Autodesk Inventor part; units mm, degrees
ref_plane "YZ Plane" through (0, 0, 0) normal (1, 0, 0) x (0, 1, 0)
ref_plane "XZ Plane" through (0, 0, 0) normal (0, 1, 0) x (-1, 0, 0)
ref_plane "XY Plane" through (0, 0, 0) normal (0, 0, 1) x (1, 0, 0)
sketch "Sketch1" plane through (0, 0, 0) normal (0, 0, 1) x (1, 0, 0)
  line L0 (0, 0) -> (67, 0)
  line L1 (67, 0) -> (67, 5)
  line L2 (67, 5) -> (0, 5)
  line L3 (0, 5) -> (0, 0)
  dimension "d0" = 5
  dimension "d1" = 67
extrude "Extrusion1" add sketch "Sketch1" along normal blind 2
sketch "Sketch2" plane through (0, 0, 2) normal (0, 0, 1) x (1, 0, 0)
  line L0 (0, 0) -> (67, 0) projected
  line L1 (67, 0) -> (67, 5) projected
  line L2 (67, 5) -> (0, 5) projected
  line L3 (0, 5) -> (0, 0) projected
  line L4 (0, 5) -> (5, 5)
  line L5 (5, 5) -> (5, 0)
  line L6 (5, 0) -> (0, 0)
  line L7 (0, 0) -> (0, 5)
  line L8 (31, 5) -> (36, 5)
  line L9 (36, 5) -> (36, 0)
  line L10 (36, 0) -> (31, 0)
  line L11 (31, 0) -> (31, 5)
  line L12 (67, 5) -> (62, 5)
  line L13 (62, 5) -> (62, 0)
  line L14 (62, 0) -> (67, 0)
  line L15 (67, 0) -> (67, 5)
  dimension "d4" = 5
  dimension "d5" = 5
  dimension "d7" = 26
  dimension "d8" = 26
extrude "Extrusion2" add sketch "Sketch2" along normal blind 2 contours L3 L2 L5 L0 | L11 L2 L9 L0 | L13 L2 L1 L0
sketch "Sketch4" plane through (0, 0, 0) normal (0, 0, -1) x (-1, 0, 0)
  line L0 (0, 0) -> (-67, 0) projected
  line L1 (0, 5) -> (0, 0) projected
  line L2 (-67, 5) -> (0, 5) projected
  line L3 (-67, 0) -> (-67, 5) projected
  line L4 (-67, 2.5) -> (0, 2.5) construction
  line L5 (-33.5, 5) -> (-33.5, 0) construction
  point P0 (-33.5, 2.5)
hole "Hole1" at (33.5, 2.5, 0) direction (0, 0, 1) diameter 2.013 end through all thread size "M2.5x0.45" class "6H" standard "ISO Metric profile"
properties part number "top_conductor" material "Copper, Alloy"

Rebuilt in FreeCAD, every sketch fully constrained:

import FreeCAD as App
import Part
import Sketcher
from FreeCAD import Vector

doc = App.newDocument("Part")
params = doc.addObject("Spreadsheet::Sheet", "Params")
for row, (alias, value) in enumerate([
    ("sketch1_width", "67 mm"),
    ("sketch1_height", "5 mm"),
    ("pad1_length", "2 mm"),
    ("sketch2_width", "5 mm"),
    ("pad2_length", "2 mm"),
    ("hole_diameter", "2.013 mm"),
], start=1):
    params.set(f"A{row}", alias)
    params.set(f"B{row}", "=" + value)
    params.setAlias(f"B{row}", alias)

body = doc.addObject("PartDesign::Body", "Body")

sketch1 = doc.addObject("Sketcher::SketchObject", "Sketch")
body.addObject(sketch1)
sketch1.AttachmentSupport = (doc.XY_Plane, [""])
sketch1.MapMode = "FlatFace"
sketch1.addGeometry([
    Part.LineSegment(Vector(0, 5, 0), Vector(0, 0, 0)),
    Part.LineSegment(Vector(0, 0, 0), Vector(67, 0, 0)),
    Part.LineSegment(Vector(67, 0, 0), Vector(67, 5, 0)),
    Part.LineSegment(Vector(67, 5, 0), Vector(0, 5, 0)),
], False)
sketch1.addConstraint([
    Sketcher.Constraint("Coincident", 0, 2, 1, 1),
    Sketcher.Constraint("Coincident", 1, 2, 2, 1),
    Sketcher.Constraint("Coincident", 2, 2, 3, 1),
    Sketcher.Constraint("Coincident", 3, 2, 0, 1),
    Sketcher.Constraint("Vertical", 0),
    Sketcher.Constraint("Horizontal", 1),
    Sketcher.Constraint("Vertical", 2),
    Sketcher.Constraint("Horizontal", 3),
    Sketcher.Constraint("Coincident", 0, 2, -1, 1),
    Sketcher.Constraint("DistanceX", 1, 1, 1, 2, 67.0),
    Sketcher.Constraint("DistanceY", 0, 2, 0, 1, 5.0),
])
sketch1.setExpression("Constraints[9]", "Params.sketch1_width")
sketch1.setExpression("Constraints[10]", "Params.sketch1_height")
pad1 = doc.addObject("PartDesign::Pad", "Pad")
body.addObject(pad1)
pad1.Profile = sketch1
pad1.setExpression("Length", "Params.pad1_length")

sketch2 = doc.addObject("Sketcher::SketchObject", "Sketch001")
body.addObject(sketch2)
sketch2.AttachmentSupport = (doc.XY_Plane, [""])
sketch2.MapMode = "FlatFace"
sketch2.AttachmentOffset = App.Placement(Vector(0, 0, 2), App.Rotation())
sketch2.addGeometry([
    Part.LineSegment(Vector(0, 5, 0), Vector(0, 0, 0)),
    Part.LineSegment(Vector(0, 0, 0), Vector(5, 0, 0)),
    Part.LineSegment(Vector(5, 0, 0), Vector(5, 5, 0)),
    Part.LineSegment(Vector(5, 5, 0), Vector(0, 5, 0)),
    Part.LineSegment(Vector(31, 5, 0), Vector(31, 0, 0)),
    Part.LineSegment(Vector(31, 0, 0), Vector(36, 0, 0)),
    Part.LineSegment(Vector(36, 0, 0), Vector(36, 5, 0)),
    Part.LineSegment(Vector(36, 5, 0), Vector(31, 5, 0)),
    Part.LineSegment(Vector(62, 5, 0), Vector(62, 0, 0)),
    Part.LineSegment(Vector(62, 0, 0), Vector(67, 0, 0)),
    Part.LineSegment(Vector(67, 0, 0), Vector(67, 5, 0)),
    Part.LineSegment(Vector(67, 5, 0), Vector(62, 5, 0)),
], False)
sketch2.addConstraint([
    Sketcher.Constraint("Coincident", 0, 2, 1, 1),
    Sketcher.Constraint("Coincident", 1, 2, 2, 1),
    Sketcher.Constraint("Coincident", 2, 2, 3, 1),
    Sketcher.Constraint("Coincident", 3, 2, 0, 1),
    Sketcher.Constraint("Coincident", 4, 2, 5, 1),
    Sketcher.Constraint("Coincident", 5, 2, 6, 1),
    Sketcher.Constraint("Coincident", 6, 2, 7, 1),
    Sketcher.Constraint("Coincident", 7, 2, 4, 1),
    Sketcher.Constraint("Coincident", 8, 2, 9, 1),
    Sketcher.Constraint("Coincident", 9, 2, 10, 1),
    Sketcher.Constraint("Coincident", 10, 2, 11, 1),
    Sketcher.Constraint("Coincident", 11, 2, 8, 1),
    Sketcher.Constraint("Vertical", 0),
    Sketcher.Constraint("Horizontal", 1),
    Sketcher.Constraint("Vertical", 2),
    Sketcher.Constraint("Horizontal", 3),
    Sketcher.Constraint("Vertical", 4),
    Sketcher.Constraint("Horizontal", 5),
    Sketcher.Constraint("Vertical", 6),
    Sketcher.Constraint("Horizontal", 7),
    Sketcher.Constraint("Vertical", 8),
    Sketcher.Constraint("Horizontal", 9),
    Sketcher.Constraint("Vertical", 10),
    Sketcher.Constraint("Horizontal", 11),
    Sketcher.Constraint("Coincident", 0, 2, -1, 1),
    Sketcher.Constraint("PointOnObject", 4, 2, -1),
    Sketcher.Constraint("PointOnObject", 8, 2, -1),
    Sketcher.Constraint("Horizontal", 3, 2, 6, 2),
    Sketcher.Constraint("Horizontal", 7, 2, 10, 2),
    Sketcher.Constraint("Equal", 3, 5),
    Sketcher.Constraint("Equal", 7, 9),
    Sketcher.Constraint("Equal", 11, 0),
    Sketcher.Constraint("DistanceX", 1, 1, 1, 2, 5.0),
    Sketcher.Constraint("DistanceX", 1, 2, 4, 2, 26.0),
    Sketcher.Constraint("DistanceX", 5, 2, 8, 2, 26.0),
])
sketch2.setExpression("Constraints[32]", "Params.sketch2_width")
pad2 = doc.addObject("PartDesign::Pad", "Pad001")
body.addObject(pad2)
pad2.Profile = sketch2
pad2.setExpression("Length", "Params.pad2_length")

sketch3 = doc.addObject("Sketcher::SketchObject", "Sketch002")
body.addObject(sketch3)
sketch3.AttachmentSupport = (doc.XY_Plane, [""])
sketch3.MapMode = "FlatFace"
sketch3.addGeometry(Part.Circle(Vector(33.5, 2.5, 0), Vector(0, 0, 1), 1), False)
sketch3.addConstraint([
    Sketcher.Constraint("Diameter", 0, 2.013),
    Sketcher.Constraint("DistanceX", -1, 1, 0, 3, 33.5),
    Sketcher.Constraint("DistanceY", -1, 1, 0, 3, 2.5),
])
doc.recompute()
hole = doc.addObject("PartDesign::Hole", "Hole")
body.addObject(hole)
hole.Profile = sketch3
hole.ThreadType = "None"
hole.setExpression("Diameter", "Params.hole_diameter")
hole.DepthType = "ThroughAll"
hole.Reversed = True

doc.recompute()
